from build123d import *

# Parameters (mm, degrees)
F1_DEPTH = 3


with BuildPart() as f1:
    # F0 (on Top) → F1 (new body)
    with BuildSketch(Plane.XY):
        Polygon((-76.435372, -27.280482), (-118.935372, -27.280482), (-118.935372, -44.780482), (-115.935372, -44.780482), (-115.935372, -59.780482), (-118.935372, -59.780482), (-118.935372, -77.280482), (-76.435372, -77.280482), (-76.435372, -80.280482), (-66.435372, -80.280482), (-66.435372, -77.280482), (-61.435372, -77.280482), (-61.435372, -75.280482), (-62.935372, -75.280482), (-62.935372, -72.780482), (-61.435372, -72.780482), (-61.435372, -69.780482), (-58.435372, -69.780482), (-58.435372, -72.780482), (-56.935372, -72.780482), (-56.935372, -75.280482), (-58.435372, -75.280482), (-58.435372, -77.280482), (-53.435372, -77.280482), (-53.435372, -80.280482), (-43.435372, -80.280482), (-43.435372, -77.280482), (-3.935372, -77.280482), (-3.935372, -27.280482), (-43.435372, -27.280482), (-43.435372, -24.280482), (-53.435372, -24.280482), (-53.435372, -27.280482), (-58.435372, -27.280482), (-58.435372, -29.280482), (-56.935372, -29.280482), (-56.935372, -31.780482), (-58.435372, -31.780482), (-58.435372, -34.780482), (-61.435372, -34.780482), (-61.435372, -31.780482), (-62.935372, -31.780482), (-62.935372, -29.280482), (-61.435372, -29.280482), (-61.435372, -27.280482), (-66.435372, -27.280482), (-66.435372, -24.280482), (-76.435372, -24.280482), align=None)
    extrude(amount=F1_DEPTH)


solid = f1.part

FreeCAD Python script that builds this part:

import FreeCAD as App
import Part
import Sketcher

V = App.Vector
Q = App.Units.Quantity

doc = App.newDocument("Part")
body = doc.addObject("PartDesign::Body", "Body")

# Sketch on XY plane
sketch1 = body.newObject("Sketcher::SketchObject", "Sketch")
sketch1.AttachmentSupport = (doc.getObject("XY_Plane"), [""])
sketch1.MapMode = "FlatFace"
sketch1.addGeometry(Part.LineSegment(V(-76.435372, -27.280482, 0), V(-118.935372, -27.280482, 0)), False)
sketch1.addGeometry(Part.LineSegment(V(-118.935372, -27.280482, 0), V(-118.935372, -44.780482, 0)), False)
sketch1.addGeometry(Part.LineSegment(V(-118.935372, -44.780482, 0), V(-115.935372, -44.780482, 0)), False)
sketch1.addGeometry(Part.LineSegment(V(-115.935372, -44.780482, 0), V(-115.935372, -59.780482, 0)), False)
sketch1.addGeometry(Part.LineSegment(V(-115.935372, -59.780482, 0), V(-118.935372, -59.780482, 0)), False)
sketch1.addGeometry(Part.LineSegment(V(-118.935372, -59.780482, 0), V(-118.935372, -77.280482, 0)), False)
sketch1.addGeometry(Part.LineSegment(V(-118.935372, -77.280482, 0), V(-76.435372, -77.280482, 0)), False)
sketch1.addGeometry(Part.LineSegment(V(-76.435372, -77.280482, 0), V(-76.435372, -80.280482, 0)), False)
sketch1.addGeometry(Part.LineSegment(V(-76.435372, -80.280482, 0), V(-66.435372, -80.280482, 0)), False)
sketch1.addGeometry(Part.LineSegment(V(-66.435372, -80.280482, 0), V(-66.435372, -77.280482, 0)), False)
sketch1.addGeometry(Part.LineSegment(V(-66.435372, -77.280482, 0), V(-61.435372, -77.280482, 0)), False)
sketch1.addGeometry(Part.LineSegment(V(-61.435372, -77.280482, 0), V(-61.435372, -75.280482, 0)), False)
sketch1.addGeometry(Part.LineSegment(V(-61.435372, -75.280482, 0), V(-62.935372, -75.280482, 0)), False)
sketch1.addGeometry(Part.LineSegment(V(-62.935372, -75.280482, 0), V(-62.935372, -72.780482, 0)), False)
sketch1.addGeometry(Part.LineSegment(V(-62.935372, -72.780482, 0), V(-61.435372, -72.780482, 0)), False)
sketch1.addGeometry(Part.LineSegment(V(-61.435372, -72.780482, 0), V(-61.435372, -69.780482, 0)), False)
sketch1.addGeometry(Part.LineSegment(V(-61.435372, -69.780482, 0), V(-58.435372, -69.780482, 0)), False)
sketch1.addGeometry(Part.LineSegment(V(-58.435372, -69.780482, 0), V(-58.435372, -72.780482, 0)), False)
sketch1.addGeometry(Part.LineSegment(V(-58.435372, -72.780482, 0), V(-56.935372, -72.780482, 0)), False)
sketch1.addGeometry(Part.LineSegment(V(-56.935372, -72.780482, 0), V(-56.935372, -75.280482, 0)), False)
sketch1.addGeometry(Part.LineSegment(V(-56.935372, -75.280482, 0), V(-58.435372, -75.280482, 0)), False)
sketch1.addGeometry(Part.LineSegment(V(-58.435372, -75.280482, 0), V(-58.435372, -77.280482, 0)), False)
sketch1.addGeometry(Part.LineSegment(V(-58.435372, -77.280482, 0), V(-53.435372, -77.280482, 0)), False)
sketch1.addGeometry(Part.LineSegment(V(-53.435372, -77.280482, 0), V(-53.435372, -80.280482, 0)), False)
sketch1.addGeometry(Part.LineSegment(V(-53.435372, -80.280482, 0), V(-43.435372, -80.280482, 0)), False)
sketch1.addGeometry(Part.LineSegment(V(-43.435372, -80.280482, 0), V(-43.435372, -77.280482, 0)), False)
sketch1.addGeometry(Part.LineSegment(V(-43.435372, -77.280482, 0), V(-3.935372, -77.280482, 0)), False)
sketch1.addGeometry(Part.LineSegment(V(-3.935372, -77.280482, 0), V(-3.935372, -27.280482, 0)), False)
sketch1.addGeometry(Part.LineSegment(V(-3.935372, -27.280482, 0), V(-43.435372, -27.280482, 0)), False)
sketch1.addGeometry(Part.LineSegment(V(-43.435372, -27.280482, 0), V(-43.435372, -24.280482, 0)), False)
sketch1.addGeometry(Part.LineSegment(V(-43.435372, -24.280482, 0), V(-53.435372, -24.280482, 0)), False)
sketch1.addGeometry(Part.LineSegment(V(-53.435372, -24.280482, 0), V(-53.435372, -27.280482, 0)), False)
sketch1.addGeometry(Part.LineSegment(V(-53.435372, -27.280482, 0), V(-58.435372, -27.280482, 0)), False)
sketch1.addGeometry(Part.LineSegment(V(-58.435372, -27.280482, 0), V(-58.435372, -29.280482, 0)), False)
sketch1.addGeometry(Part.LineSegment(V(-58.435372, -29.280482, 0), V(-56.935372, -29.280482, 0)), False)
sketch1.addGeometry(Part.LineSegment(V(-56.935372, -29.280482, 0), V(-56.935372, -31.780482, 0)), False)
sketch1.addGeometry(Part.LineSegment(V(-56.935372, -31.780482, 0), V(-58.435372, -31.780482, 0)), False)
sketch1.addGeometry(Part.LineSegment(V(-58.435372, -31.780482, 0), V(-58.435372, -34.780482, 0)), False)
sketch1.addGeometry(Part.LineSegment(V(-58.435372, -34.780482, 0), V(-61.435372, -34.780482, 0)), False)
sketch1.addGeometry(Part.LineSegment(V(-61.435372, -34.780482, 0), V(-61.435372, -31.780482, 0)), False)
sketch1.addGeometry(Part.LineSegment(V(-61.435372, -31.780482, 0), V(-62.935372, -31.780482, 0)), False)
sketch1.addGeometry(Part.LineSegment(V(-62.935372, -31.780482, 0), V(-62.935372, -29.280482, 0)), False)
sketch1.addGeometry(Part.LineSegment(V(-62.935372, -29.280482, 0), V(-61.435372, -29.280482, 0)), False)
sketch1.addGeometry(Part.LineSegment(V(-61.435372, -29.280482, 0), V(-61.435372, -27.280482, 0)), False)
sketch1.addGeometry(Part.LineSegment(V(-61.435372, -27.280482, 0), V(-66.435372, -27.280482, 0)), False)
sketch1.addGeometry(Part.LineSegment(V(-66.435372, -27.280482, 0), V(-66.435372, -24.280482, 0)), False)
sketch1.addGeometry(Part.LineSegment(V(-66.435372, -24.280482, 0), V(-76.435372, -24.280482, 0)), False)
sketch1.addGeometry(Part.LineSegment(V(-76.435372, -24.280482, 0), V(-76.435372, -27.280482, 0)), False)
sketch1.addConstraint(Sketcher.Constraint("Coincident", 0, 2, 1, 1))
sketch1.addConstraint(Sketcher.Constraint("Coincident", 1, 2, 2, 1))
sketch1.addConstraint(Sketcher.Constraint("Coincident", 2, 2, 3, 1))
sketch1.addConstraint(Sketcher.Constraint("Coincident", 3, 2, 4, 1))
sketch1.addConstraint(Sketcher.Constraint("Coincident", 4, 2, 5, 1))
sketch1.addConstraint(Sketcher.Constraint("Coincident", 5, 2, 6, 1))
sketch1.addConstraint(Sketcher.Constraint("Coincident", 6, 2, 7, 1))
sketch1.addConstraint(Sketcher.Constraint("Coincident", 7, 2, 8, 1))
sketch1.addConstraint(Sketcher.Constraint("Coincident", 8, 2, 9, 1))
sketch1.addConstraint(Sketcher.Constraint("Coincident", 9, 2, 10, 1))
sketch1.addConstraint(Sketcher.Constraint("Coincident", 10, 2, 11, 1))
sketch1.addConstraint(Sketcher.Constraint("Coincident", 11, 2, 12, 1))
sketch1.addConstraint(Sketcher.Constraint("Coincident", 12, 2, 13, 1))
sketch1.addConstraint(Sketcher.Constraint("Coincident", 13, 2, 14, 1))
sketch1.addConstraint(Sketcher.Constraint("Coincident", 14, 2, 15, 1))
sketch1.addConstraint(Sketcher.Constraint("Coincident", 15, 2, 16, 1))
sketch1.addConstraint(Sketcher.Constraint("Coincident", 16, 2, 17, 1))
sketch1.addConstraint(Sketcher.Constraint("Coincident", 17, 2, 18, 1))
sketch1.addConstraint(Sketcher.Constraint("Coincident", 18, 2, 19, 1))
sketch1.addConstraint(Sketcher.Constraint("Coincident", 19, 2, 20, 1))
sketch1.addConstraint(Sketcher.Constraint("Coincident", 20, 2, 21, 1))
sketch1.addConstraint(Sketcher.Constraint("Coincident", 21, 2, 22, 1))
sketch1.addConstraint(Sketcher.Constraint("Coincident", 22, 2, 23, 1))
sketch1.addConstraint(Sketcher.Constraint("Coincident", 23, 2, 24, 1))
sketch1.addConstraint(Sketcher.Constraint("Coincident", 24, 2, 25, 1))
sketch1.addConstraint(Sketcher.Constraint("Coincident", 25, 2, 26, 1))
sketch1.addConstraint(Sketcher.Constraint("Coincident", 26, 2, 27, 1))
sketch1.addConstraint(Sketcher.Constraint("Coincident", 27, 2, 28, 1))
sketch1.addConstraint(Sketcher.Constraint("Coincident", 28, 2, 29, 1))
sketch1.addConstraint(Sketcher.Constraint("Coincident", 29, 2, 30, 1))
sketch1.addConstraint(Sketcher.Constraint("Coincident", 30, 2, 31, 1))
sketch1.addConstraint(Sketcher.Constraint("Coincident", 31, 2, 32, 1))
sketch1.addConstraint(Sketcher.Constraint("Coincident", 32, 2, 33, 1))
sketch1.addConstraint(Sketcher.Constraint("Coincident", 33, 2, 34, 1))
sketch1.addConstraint(Sketcher.Constraint("Coincident", 34, 2, 35, 1))
sketch1.addConstraint(Sketcher.Constraint("Coincident", 35, 2, 36, 1))
sketch1.addConstraint(Sketcher.Constraint("Coincident", 36, 2, 37, 1))
sketch1.addConstraint(Sketcher.Constraint("Coincident", 37, 2, 38, 1))
sketch1.addConstraint(Sketcher.Constraint("Coincident", 38, 2, 39, 1))
sketch1.addConstraint(Sketcher.Constraint("Coincident", 39, 2, 40, 1))
sketch1.addConstraint(Sketcher.Constraint("Coincident", 40, 2, 41, 1))
sketch1.addConstraint(Sketcher.Constraint("Coincident", 41, 2, 42, 1))
sketch1.addConstraint(Sketcher.Constraint("Coincident", 42, 2, 43, 1))
sketch1.addConstraint(Sketcher.Constraint("Coincident", 43, 2, 44, 1))
sketch1.addConstraint(Sketcher.Constraint("Coincident", 44, 2, 45, 1))
sketch1.addConstraint(Sketcher.Constraint("Coincident", 45, 2, 46, 1))
sketch1.addConstraint(Sketcher.Constraint("Coincident", 46, 2, 47, 1))
sketch1.addConstraint(Sketcher.Constraint("Coincident", 47, 2, 0, 1))
sketch1.addConstraint(Sketcher.Constraint("Horizontal", 0))
sketch1.addConstraint(Sketcher.Constraint("Vertical", 1))
sketch1.addConstraint(Sketcher.Constraint("Horizontal", 2))
sketch1.addConstraint(Sketcher.Constraint("Vertical", 3))
sketch1.addConstraint(Sketcher.Constraint("Horizontal", 4))
sketch1.addConstraint(Sketcher.Constraint("Vertical", 5))
sketch1.addConstraint(Sketcher.Constraint("Horizontal", 6))
sketch1.addConstraint(Sketcher.Constraint("Vertical", 7))
sketch1.addConstraint(Sketcher.Constraint("Horizontal", 8))
sketch1.addConstraint(Sketcher.Constraint("Vertical", 9))
sketch1.addConstraint(Sketcher.Constraint("Horizontal", 10))
sketch1.addConstraint(Sketcher.Constraint("Vertical", 11))
sketch1.addConstraint(Sketcher.Constraint("Horizontal", 12))
sketch1.addConstraint(Sketcher.Constraint("Vertical", 13))
sketch1.addConstraint(Sketcher.Constraint("Horizontal", 14))
sketch1.addConstraint(Sketcher.Constraint("Vertical", 15))
sketch1.addConstraint(Sketcher.Constraint("Horizontal", 16))
sketch1.addConstraint(Sketcher.Constraint("Vertical", 17))
sketch1.addConstraint(Sketcher.Constraint("Horizontal", 18))
sketch1.addConstraint(Sketcher.Constraint("Vertical", 19))
sketch1.addConstraint(Sketcher.Constraint("Horizontal", 20))
sketch1.addConstraint(Sketcher.Constraint("Vertical", 21))
sketch1.addConstraint(Sketcher.Constraint("Horizontal", 22))
sketch1.addConstraint(Sketcher.Constraint("Vertical", 23))
sketch1.addConstraint(Sketcher.Constraint("Horizontal", 24))
sketch1.addConstraint(Sketcher.Constraint("Vertical", 25))
sketch1.addConstraint(Sketcher.Constraint("Horizontal", 26))
sketch1.addConstraint(Sketcher.Constraint("Vertical", 27))
sketch1.addConstraint(Sketcher.Constraint("Horizontal", 28))
sketch1.addConstraint(Sketcher.Constraint("Vertical", 29))
sketch1.addConstraint(Sketcher.Constraint("Horizontal", 30))
sketch1.addConstraint(Sketcher.Constraint("Vertical", 31))
sketch1.addConstraint(Sketcher.Constraint("Horizontal", 32))
sketch1.addConstraint(Sketcher.Constraint("Vertical", 33))
sketch1.addConstraint(Sketcher.Constraint("Horizontal", 34))
sketch1.addConstraint(Sketcher.Constraint("Vertical", 35))
sketch1.addConstraint(Sketcher.Constraint("Horizontal", 36))
sketch1.addConstraint(Sketcher.Constraint("Vertical", 37))
sketch1.addConstraint(Sketcher.Constraint("Horizontal", 38))
sketch1.addConstraint(Sketcher.Constraint("Vertical", 39))
sketch1.addConstraint(Sketcher.Constraint("Horizontal", 40))
sketch1.addConstraint(Sketcher.Constraint("Vertical", 41))
sketch1.addConstraint(Sketcher.Constraint("Horizontal", 42))
sketch1.addConstraint(Sketcher.Constraint("Vertical", 43))
sketch1.addConstraint(Sketcher.Constraint("Horizontal", 44))
sketch1.addConstraint(Sketcher.Constraint("Vertical", 45))
sketch1.addConstraint(Sketcher.Constraint("Horizontal", 46))
sketch1.addConstraint(Sketcher.Constraint("Vertical", 47))
sketch1.addConstraint(Sketcher.Constraint("Horizontal", 6, 2, 9, 2))
sketch1.addConstraint(Sketcher.Constraint("Horizontal", 14, 2, 17, 2))
sketch1.addConstraint(Sketcher.Constraint("Horizontal", 12, 2, 19, 2))
sketch1.addConstraint(Sketcher.Constraint("Horizontal", 10, 2, 21, 2))
sketch1.addConstraint(Sketcher.Constraint("Horizontal", 8, 2, 23, 2))
sketch1.addConstraint(Sketcher.Constraint("Horizontal", 22, 2, 25, 2))
sketch1.addConstraint(Sketcher.Constraint("Horizontal", 0, 2, 27, 2))
sketch1.addConstraint(Sketcher.Constraint("Horizontal", 28, 2, 31, 2))
sketch1.addConstraint(Sketcher.Constraint("Horizontal", 36, 2, 39, 2))
sketch1.addConstraint(Sketcher.Constraint("Horizontal", 34, 2, 41, 2))
sketch1.addConstraint(Sketcher.Constraint("Horizontal", 32, 2, 43, 2))
sketch1.addConstraint(Sketcher.Constraint("Horizontal", 30, 2, 45, 2))
sketch1.addConstraint(Sketcher.Constraint("Vertical", 1, 2, 4, 2))
sketch1.addConstraint(Sketcher.Constraint("Vertical", 11, 2, 14, 2))
sketch1.addConstraint(Sketcher.Constraint("Vertical", 17, 2, 20, 2))
sketch1.addConstraint(Sketcher.Constraint("Vertical", 25, 2, 28, 2))
sketch1.addConstraint(Sketcher.Constraint("Vertical", 23, 2, 30, 2))
sketch1.addConstraint(Sketcher.Constraint("Vertical", 21, 2, 32, 2))
sketch1.addConstraint(Sketcher.Constraint("Vertical", 19, 2, 34, 2))
sketch1.addConstraint(Sketcher.Constraint("Vertical", 33, 2, 36, 2))
sketch1.addConstraint(Sketcher.Constraint("Vertical", 15, 2, 38, 2))
sketch1.addConstraint(Sketcher.Constraint("Vertical", 13, 2, 40, 2))
sketch1.addConstraint(Sketcher.Constraint("Vertical", 39, 2, 42, 2))
sketch1.addConstraint(Sketcher.Constraint("Vertical", 9, 2, 44, 2))
sketch1.addConstraint(Sketcher.Constraint("Vertical", 7, 2, 46, 2))
sketch1.addConstraint(Sketcher.Constraint("Equal", 4, 16))
sketch1.addConstraint(Sketcher.Constraint("Equal", 14, 18))
sketch1.addConstraint(Sketcher.Constraint("Equal", 10, 22))
sketch1.addConstraint(Sketcher.Constraint("Equal", 8, 24))
sketch1.addConstraint(Sketcher.Constraint("Equal", 1, 5))
sketch1.addConstraint(Sketcher.Constraint("Equal", 38, 7))
sketch1.addConstraint(Sketcher.Constraint("Equal", 9, 15))
sketch1.addConstraint(Sketcher.Constraint("Equal", 25, 29))
sketch1.addConstraint(Sketcher.Constraint("Equal", 21, 33))
sketch1.addConstraint(Sketcher.Constraint("Equal", 19, 35))
sketch1.addConstraint(Sketcher.Constraint("Equal", 31, 37))
sketch1.addConstraint(Sketcher.Constraint("DistanceX", 2, 1, 2, 2, Q("3 mm")))
sketch1.addConstraint(Sketcher.Constraint("DistanceX", 8, 1, 8, 2, Q("10 mm")))
sketch1.addConstraint(Sketcher.Constraint("DistanceX", 10, 1, 10, 2, Q("5 mm")))
sketch1.addConstraint(Sketcher.Constraint("DistanceY", 3, 2, 3, 1, Q("15 mm")))
sketch1.addConstraint(Sketcher.Constraint("DistanceY", 11, 1, 11, 2, Q("2 mm")))
sketch1.addConstraint(Sketcher.Constraint("DistanceY", 27, 1, 27, 2, Q("50 mm")))
sketch1.addConstraint(Sketcher.Constraint("DistanceX", 0, 2, 0, 1, Q("42.5 mm")))
sketch1.addConstraint(Sketcher.Constraint("DistanceX", 12, 2, 12, 1, Q("1.5 mm")))
sketch1.addConstraint(Sketcher.Constraint("DistanceX", 26, 1, 26, 2, Q("39.5 mm")))
sketch1.addConstraint(Sketcher.Constraint("DistanceY", 13, 1, 13, 2, Q("2.5 mm")))
sketch1.addConstraint(Sketcher.Constraint("DistanceX", 0, 2, -1, 1, Q("118.935372 mm")))
sketch1.addConstraint(Sketcher.Constraint("DistanceY", 0, 2, -1, 1, Q("27.280482 mm")))
pad1 = body.newObject("PartDesign::Pad", "Pad")
pad1.Profile = sketch1
pad1.Length = 3

doc.recompute()
